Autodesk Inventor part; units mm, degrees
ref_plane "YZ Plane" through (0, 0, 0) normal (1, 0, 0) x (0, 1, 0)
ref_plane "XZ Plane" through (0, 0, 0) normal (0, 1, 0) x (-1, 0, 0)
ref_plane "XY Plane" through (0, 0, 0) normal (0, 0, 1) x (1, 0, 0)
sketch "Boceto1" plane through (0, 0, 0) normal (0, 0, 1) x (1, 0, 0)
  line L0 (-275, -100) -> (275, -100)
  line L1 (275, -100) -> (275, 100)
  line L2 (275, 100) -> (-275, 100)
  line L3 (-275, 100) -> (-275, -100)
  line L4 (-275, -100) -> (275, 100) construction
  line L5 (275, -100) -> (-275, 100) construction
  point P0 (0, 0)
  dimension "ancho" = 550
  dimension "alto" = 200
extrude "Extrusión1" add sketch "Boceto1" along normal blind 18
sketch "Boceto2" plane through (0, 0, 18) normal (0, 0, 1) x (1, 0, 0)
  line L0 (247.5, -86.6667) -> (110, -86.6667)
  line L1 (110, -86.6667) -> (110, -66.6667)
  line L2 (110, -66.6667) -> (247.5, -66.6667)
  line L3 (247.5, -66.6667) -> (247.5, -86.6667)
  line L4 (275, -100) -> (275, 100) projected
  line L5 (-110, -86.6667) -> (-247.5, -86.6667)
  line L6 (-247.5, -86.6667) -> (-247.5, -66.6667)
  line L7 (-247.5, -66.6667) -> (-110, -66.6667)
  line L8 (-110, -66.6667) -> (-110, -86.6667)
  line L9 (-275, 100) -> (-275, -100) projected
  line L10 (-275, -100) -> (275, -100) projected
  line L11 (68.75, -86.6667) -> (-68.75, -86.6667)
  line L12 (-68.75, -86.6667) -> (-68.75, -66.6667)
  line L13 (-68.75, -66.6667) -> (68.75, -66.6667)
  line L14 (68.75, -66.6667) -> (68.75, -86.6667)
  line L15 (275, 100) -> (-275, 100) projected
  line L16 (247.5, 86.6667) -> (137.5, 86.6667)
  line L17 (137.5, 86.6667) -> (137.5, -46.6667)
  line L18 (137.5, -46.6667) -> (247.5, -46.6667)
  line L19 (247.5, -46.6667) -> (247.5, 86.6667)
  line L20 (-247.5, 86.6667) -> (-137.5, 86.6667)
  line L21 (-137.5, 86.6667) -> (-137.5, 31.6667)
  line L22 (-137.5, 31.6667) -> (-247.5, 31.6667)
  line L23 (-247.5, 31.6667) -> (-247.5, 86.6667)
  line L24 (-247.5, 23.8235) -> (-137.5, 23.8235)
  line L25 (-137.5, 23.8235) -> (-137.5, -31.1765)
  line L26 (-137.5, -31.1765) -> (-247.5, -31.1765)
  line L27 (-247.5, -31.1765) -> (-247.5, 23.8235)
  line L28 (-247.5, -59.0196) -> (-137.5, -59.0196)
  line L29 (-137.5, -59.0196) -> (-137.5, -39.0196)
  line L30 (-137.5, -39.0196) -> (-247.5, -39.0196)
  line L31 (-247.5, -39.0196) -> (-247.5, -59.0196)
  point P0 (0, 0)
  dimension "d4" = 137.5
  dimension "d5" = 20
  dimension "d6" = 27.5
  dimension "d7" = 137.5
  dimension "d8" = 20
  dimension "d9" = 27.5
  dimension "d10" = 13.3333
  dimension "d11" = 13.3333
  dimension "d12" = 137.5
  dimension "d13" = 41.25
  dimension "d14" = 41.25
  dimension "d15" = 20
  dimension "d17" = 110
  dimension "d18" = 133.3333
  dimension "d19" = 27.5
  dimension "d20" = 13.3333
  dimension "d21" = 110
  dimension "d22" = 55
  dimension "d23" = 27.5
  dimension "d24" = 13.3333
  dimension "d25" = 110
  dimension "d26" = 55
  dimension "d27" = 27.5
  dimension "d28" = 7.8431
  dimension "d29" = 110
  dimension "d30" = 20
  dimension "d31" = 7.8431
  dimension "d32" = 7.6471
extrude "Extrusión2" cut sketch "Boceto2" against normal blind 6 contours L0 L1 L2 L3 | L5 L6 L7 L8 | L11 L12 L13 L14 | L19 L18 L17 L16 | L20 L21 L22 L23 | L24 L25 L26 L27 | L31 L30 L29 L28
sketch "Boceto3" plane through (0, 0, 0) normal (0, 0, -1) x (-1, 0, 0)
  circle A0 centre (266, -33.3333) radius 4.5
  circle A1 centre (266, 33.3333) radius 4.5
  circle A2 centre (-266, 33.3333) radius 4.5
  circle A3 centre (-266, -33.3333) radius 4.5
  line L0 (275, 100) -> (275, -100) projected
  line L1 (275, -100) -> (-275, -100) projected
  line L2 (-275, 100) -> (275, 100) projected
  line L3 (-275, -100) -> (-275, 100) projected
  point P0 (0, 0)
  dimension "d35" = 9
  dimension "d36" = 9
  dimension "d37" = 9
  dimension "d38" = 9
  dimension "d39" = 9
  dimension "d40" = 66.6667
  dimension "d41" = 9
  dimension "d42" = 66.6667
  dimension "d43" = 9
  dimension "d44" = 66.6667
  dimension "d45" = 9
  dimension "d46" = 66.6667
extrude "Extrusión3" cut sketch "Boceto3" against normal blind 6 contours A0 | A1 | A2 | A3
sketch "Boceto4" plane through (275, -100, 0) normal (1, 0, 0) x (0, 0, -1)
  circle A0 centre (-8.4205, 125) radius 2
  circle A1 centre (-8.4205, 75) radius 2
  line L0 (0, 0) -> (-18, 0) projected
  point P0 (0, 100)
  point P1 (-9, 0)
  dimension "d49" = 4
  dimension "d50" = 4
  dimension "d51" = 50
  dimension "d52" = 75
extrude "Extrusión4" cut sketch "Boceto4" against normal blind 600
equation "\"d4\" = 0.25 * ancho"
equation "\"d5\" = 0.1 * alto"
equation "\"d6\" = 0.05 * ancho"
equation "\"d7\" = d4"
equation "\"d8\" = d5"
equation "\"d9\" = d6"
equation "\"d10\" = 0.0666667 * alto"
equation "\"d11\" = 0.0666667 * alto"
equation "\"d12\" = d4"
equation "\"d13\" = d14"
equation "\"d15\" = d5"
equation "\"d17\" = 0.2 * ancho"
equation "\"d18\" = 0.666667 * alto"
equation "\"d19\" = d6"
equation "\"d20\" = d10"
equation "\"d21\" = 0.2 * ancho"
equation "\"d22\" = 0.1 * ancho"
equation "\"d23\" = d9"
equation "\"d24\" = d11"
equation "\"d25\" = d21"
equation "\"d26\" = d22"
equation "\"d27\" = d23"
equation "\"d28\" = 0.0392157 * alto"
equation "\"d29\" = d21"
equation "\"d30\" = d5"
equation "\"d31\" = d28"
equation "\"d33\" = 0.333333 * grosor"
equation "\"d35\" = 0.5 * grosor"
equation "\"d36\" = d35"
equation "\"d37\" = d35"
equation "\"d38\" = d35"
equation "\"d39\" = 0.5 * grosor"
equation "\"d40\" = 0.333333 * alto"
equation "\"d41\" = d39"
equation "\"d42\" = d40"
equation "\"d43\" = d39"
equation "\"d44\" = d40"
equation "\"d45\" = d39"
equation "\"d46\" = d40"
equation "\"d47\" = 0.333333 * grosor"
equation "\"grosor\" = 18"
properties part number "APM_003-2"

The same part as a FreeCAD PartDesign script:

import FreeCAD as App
import Part
import Sketcher

V = App.Vector
Q = App.Units.Quantity

doc = App.newDocument("Part")
params = doc.addObject("Spreadsheet::Sheet", "Params")
for row, (alias, value) in enumerate([
    ("sketch1_width", "550 mm"),
    ("sketch1_height", "200 mm"),
    ("pad1_length", "18 mm"),
    ("sketch2_width", "110 mm"),
    ("sketch2_height", "20 mm"),
    ("sketch2_height2", "55 mm"),
    ("sketch2_width2", "137.5 mm"),
    ("pocket1_length", "6 mm"),
    ("sketch3_diameter", "9 mm"),
    ("pocket2_length", "6 mm"),
    ("sketch4_diameter", "4 mm"),
    ("pocket3_length", "600 mm"),
], start=1):
    params.set(f"A{row}", alias)
    params.set(f"B{row}", "=" + value)
    params.setAlias(f"B{row}", alias)

body = doc.addObject("PartDesign::Body", "Body")

# Sketch on XY plane
sketch1 = body.newObject("Sketcher::SketchObject", "Sketch")
sketch1.AttachmentSupport = (doc.getObject("XY_Plane"), [""])
sketch1.MapMode = "FlatFace"
sketch1.addGeometry([
    Part.LineSegment(V(-275, 100, 0), V(-275, -100, 0)),
    Part.LineSegment(V(-275, -100, 0), V(275, -100, 0)),
    Part.LineSegment(V(275, -100, 0), V(275, 100, 0)),
    Part.LineSegment(V(275, 100, 0), V(-275, 100, 0)),
], False)
sketch1.addConstraint([
    Sketcher.Constraint("Coincident", 0, 2, 1, 1),
    Sketcher.Constraint("Coincident", 1, 2, 2, 1),
    Sketcher.Constraint("Coincident", 2, 2, 3, 1),
    Sketcher.Constraint("Coincident", 3, 2, 0, 1),
    Sketcher.Constraint("Vertical", 0),
    Sketcher.Constraint("Horizontal", 1),
    Sketcher.Constraint("Vertical", 2),
    Sketcher.Constraint("Horizontal", 3),
    Sketcher.Constraint("Symmetric", 0, 2, 2, 2, -1, 1),
    Sketcher.Constraint("DistanceX", 1, 1, 1, 2, Q("550 mm")),
    Sketcher.Constraint("DistanceY", 0, 2, 0, 1, Q("200 mm")),
])
sketch1.setExpression("Constraints[9]", "Params.sketch1_width")
sketch1.setExpression("Constraints[10]", "Params.sketch1_height")
pad1 = body.newObject("PartDesign::Pad", "Pad")
pad1.Profile = sketch1
pad1.setExpression("Length", "Params.pad1_length")

# Sketch on XY plane
sketch2 = body.newObject("Sketcher::SketchObject", "Sketch001")
sketch2.AttachmentSupport = (doc.getObject("XY_Plane"), [""])
sketch2.MapMode = "FlatFace"
sketch2.AttachmentOffset = App.Placement(V(0, 0, 18), App.Rotation())
sketch2.addGeometry([
    Part.LineSegment(V(110, -86.6667, 0), V(247.5, -86.6667, 0)),  # 0
    Part.LineSegment(V(247.5, -86.6667, 0), V(247.5, -66.6667, 0)),  # 1
    Part.LineSegment(V(247.5, -66.6667, 0), V(110, -66.6667, 0)),  # 2
    Part.LineSegment(V(110, -66.6667, 0), V(110, -86.6667, 0)),  # 3
    Part.LineSegment(V(-247.5, -86.6667, 0), V(-110, -86.6667, 0)),  # 4
    Part.LineSegment(V(-110, -86.6667, 0), V(-110, -66.6667, 0)),  # 5
    Part.LineSegment(V(-110, -66.6667, 0), V(-247.5, -66.6667, 0)),  # 6
    Part.LineSegment(V(-247.5, -66.6667, 0), V(-247.5, -86.6667, 0)),  # 7
    Part.LineSegment(V(-68.75, -86.6667, 0), V(68.75, -86.6667, 0)),  # 8
    Part.LineSegment(V(68.75, -86.6667, 0), V(68.75, -66.6667, 0)),  # 9
    Part.LineSegment(V(68.75, -66.6667, 0), V(-68.75, -66.6667, 0)),  # 10
    Part.LineSegment(V(-68.75, -66.6667, 0), V(-68.75, -86.6667, 0)),  # 11
    Part.LineSegment(V(247.5, -46.6667, 0), V(247.5, 86.6667, 0)),  # 12
    Part.LineSegment(V(247.5, 86.6667, 0), V(137.5, 86.6667, 0)),  # 13
    Part.LineSegment(V(137.5, 86.6667, 0), V(137.5, -46.6667, 0)),  # 14
    Part.LineSegment(V(137.5, -46.6667, 0), V(247.5, -46.6667, 0)),  # 15
    Part.LineSegment(V(-137.5, 86.6667, 0), V(-247.5, 86.6667, 0)),  # 16
    Part.LineSegment(V(-247.5, 86.6667, 0), V(-247.5, 31.6667, 0)),  # 17
    Part.LineSegment(V(-247.5, 31.6667, 0), V(-137.5, 31.6667, 0)),  # 18
    Part.LineSegment(V(-137.5, 31.6667, 0), V(-137.5, 86.6667, 0)),  # 19
    Part.LineSegment(V(-137.5, 23.8235, 0), V(-247.5, 23.8235, 0)),  # 20
    Part.LineSegment(V(-247.5, 23.8235, 0), V(-247.5, -31.1765, 0)),  # 21
    Part.LineSegment(V(-247.5, -31.1765, 0), V(-137.5, -31.1765, 0)),  # 22
    Part.LineSegment(V(-137.5, -31.1765, 0), V(-137.5, 23.8235, 0)),  # 23
    Part.LineSegment(V(-247.5, -39.0196, 0), V(-247.5, -59.0196, 0)),  # 24
    Part.LineSegment(V(-247.5, -59.0196, 0), V(-137.5, -59.0196, 0)),  # 25
    Part.LineSegment(V(-137.5, -59.0196, 0), V(-137.5, -39.0196, 0)),  # 26
    Part.LineSegment(V(-137.5, -39.0196, 0), V(-247.5, -39.0196, 0)),  # 27
], False)
sketch2.addConstraint([
    Sketcher.Constraint("Coincident", 0, 2, 1, 1),
    Sketcher.Constraint("Coincident", 1, 2, 2, 1),
    Sketcher.Constraint("Coincident", 2, 2, 3, 1),
    Sketcher.Constraint("Coincident", 3, 2, 0, 1),
    Sketcher.Constraint("Coincident", 4, 2, 5, 1),
    Sketcher.Constraint("Coincident", 5, 2, 6, 1),
    Sketcher.Constraint("Coincident", 6, 2, 7, 1),
    Sketcher.Constraint("Coincident", 7, 2, 4, 1),
    Sketcher.Constraint("Coincident", 8, 2, 9, 1),
    Sketcher.Constraint("Coincident", 9, 2, 10, 1),
    Sketcher.Constraint("Coincident", 10, 2, 11, 1),
    Sketcher.Constraint("Coincident", 11, 2, 8, 1),
    Sketcher.Constraint("Coincident", 12, 2, 13, 1),
    Sketcher.Constraint("Coincident", 13, 2, 14, 1),
    Sketcher.Constraint("Coincident", 14, 2, 15, 1),
    Sketcher.Constraint("Coincident", 15, 2, 12, 1),
    Sketcher.Constraint("Coincident", 16, 2, 17, 1),
    Sketcher.Constraint("Coincident", 17, 2, 18, 1),
    Sketcher.Constraint("Coincident", 18, 2, 19, 1),
    Sketcher.Constraint("Coincident", 19, 2, 16, 1),
    Sketcher.Constraint("Coincident", 20, 2, 21, 1),
    Sketcher.Constraint("Coincident", 21, 2, 22, 1),
    Sketcher.Constraint("Coincident", 22, 2, 23, 1),
    Sketcher.Constraint("Coincident", 23, 2, 20, 1),
    Sketcher.Constraint("Coincident", 24, 2, 25, 1),
    Sketcher.Constraint("Coincident", 25, 2, 26, 1),
    Sketcher.Constraint("Coincident", 26, 2, 27, 1),
    Sketcher.Constraint("Coincident", 27, 2, 24, 1),
    Sketcher.Constraint("Horizontal", 0),
    Sketcher.Constraint("Vertical", 1),
    Sketcher.Constraint("Horizontal", 2),
    Sketcher.Constraint("Vertical", 3),
    Sketcher.Constraint("Horizontal", 4),
    Sketcher.Constraint("Vertical", 5),
    Sketcher.Constraint("Horizontal", 6),
    Sketcher.Constraint("Vertical", 7),
    Sketcher.Constraint("Horizontal", 8),
    Sketcher.Constraint("Vertical", 9),
    Sketcher.Constraint("Horizontal", 10),
    Sketcher.Constraint("Vertical", 11),
    Sketcher.Constraint("Vertical", 12),
    Sketcher.Constraint("Horizontal", 13),
    Sketcher.Constraint("Vertical", 14),
    Sketcher.Constraint("Horizontal", 15),
    Sketcher.Constraint("Horizontal", 16),
    Sketcher.Constraint("Vertical", 17),
    Sketcher.Constraint("Horizontal", 18),
    Sketcher.Constraint("Vertical", 19),
    Sketcher.Constraint("Horizontal", 20),
    Sketcher.Constraint("Vertical", 21),
    Sketcher.Constraint("Horizontal", 22),
    Sketcher.Constraint("Vertical", 23),
    Sketcher.Constraint("Vertical", 24),
    Sketcher.Constraint("Horizontal", 25),
    Sketcher.Constraint("Vertical", 26),
    Sketcher.Constraint("Horizontal", 27),
    Sketcher.Constraint("Symmetric", 7, 2, 12, 2, -1, 1),
    Sketcher.Constraint("Symmetric", 0, 2, 16, 2, -1, 1),
    Sketcher.Constraint("Symmetric", 3, 2, 4, 2, -2),
    Sketcher.Constraint("Symmetric", 1, 2, 6, 2, -2),
    Sketcher.Constraint("Horizontal", 7, 2, 8, 2),
    Sketcher.Constraint("Horizontal", 6, 2, 9, 2),
    Sketcher.Constraint("Vertical", 17, 2, 20, 2),
    Sketcher.Constraint("Vertical", 19, 2, 22, 2),
    Sketcher.Constraint("Vertical", 21, 2, 24, 2),
    Sketcher.Constraint("Vertical", 23, 2, 25, 2),
    Sketcher.Constraint("Equal", 6, 8),
    Sketcher.Constraint("Equal", 15, 16),
    Sketcher.Constraint("Equal", 19, 21),
    Sketcher.Constraint("Equal", 11, 24),
    Sketcher.Constraint("DistanceX", 13, 2, 13, 1, Q("110 mm")),
    Sketcher.Constraint("DistanceY", 1, 1, 1, 2, Q("20 mm")),
    Sketcher.Constraint("DistanceY", 17, 2, 17, 1, Q("55 mm")),
    Sketcher.Constraint("DistanceX", 0, 1, 0, 2, Q("137.5 mm")),
    Sketcher.Constraint("DistanceX", -1, 1, 2, 2, Q("110 mm")),
    Sketcher.Constraint("DistanceY", 2, 2, 14, 2, Q("20 mm")),
    Sketcher.Constraint("DistanceX", 8, 2, 3, 2, Q("41.25 mm")),
    Sketcher.Constraint("DistanceY", 12, 1, 12, 2, Q("133.3334 mm")),
    Sketcher.Constraint("DistanceY", 6, 2, 24, 2, Q("7.647 mm")),
    Sketcher.Constraint("DistanceY", 26, 2, 22, 2, Q("7.843 mm")),
])
sketch2.setExpression("Constraints[70]", "Params.sketch2_width")
sketch2.setExpression("Constraints[71]", "Params.sketch2_height")
sketch2.setExpression("Constraints[72]", "Params.sketch2_height2")
sketch2.setExpression("Constraints[73]", "Params.sketch2_width2")
pocket1 = body.newObject("PartDesign::Pocket", "Pocket")
pocket1.Profile = sketch2
pocket1.setExpression("Length", "Params.pocket1_length")

# Sketch on XY plane
sketch3 = body.newObject("Sketcher::SketchObject", "Sketch002")
sketch3.AttachmentSupport = (doc.getObject("XY_Plane"), [""])
sketch3.MapMode = "FlatFace"
sketch3.addGeometry([
    Part.Circle(V(-266, -33.3333, 0), V(0, 0, 1), 4.5),
    Part.Circle(V(-266, 33.3333, 0), V(0, 0, 1), 4.5),
    Part.Circle(V(266, 33.3333, 0), V(0, 0, 1), 4.5),
    Part.Circle(V(266, -33.3333, 0), V(0, 0, 1), 4.5),
], False)
sketch3.addConstraint([
    Sketcher.Constraint("Equal", 0, 1),
    Sketcher.Constraint("Equal", 1, 2),
    Sketcher.Constraint("Equal", 2, 3),
    Sketcher.Constraint("Symmetric", 0, 3, 2, 3, -1, 1),
    Sketcher.Constraint("Symmetric", 1, 3, 3, 3, -1, 1),
    Sketcher.Constraint("Symmetric", 1, 3, 2, 3, -2),
    Sketcher.Constraint("Diameter", 0, Q("9 mm")),
    Sketcher.Constraint("DistanceX", 0, 3, -1, 1, Q("266 mm")),
    Sketcher.Constraint("DistanceY", 0, 3, 1, 3, Q("66.6666 mm")),
])
sketch3.setExpression("Constraints[6]", "Params.sketch3_diameter")
pocket2 = body.newObject("PartDesign::Pocket", "Pocket001")
pocket2.Profile = sketch3
pocket2.setExpression("Length", "Params.pocket2_length")
pocket2.Reversed = True

# Sketch on YZ plane
sketch4 = body.newObject("Sketcher::SketchObject", "Sketch003")
sketch4.AttachmentSupport = (doc.getObject("YZ_Plane"), [""])
sketch4.MapMode = "FlatFace"
sketch4.AttachmentOffset = App.Placement(V(0, 0, 275), App.Rotation())
sketch4.addGeometry([
    Part.Circle(V(25, 8.4205, 0), V(0, 0, 1), 2),
    Part.Circle(V(-25, 8.4205, 0), V(0, 0, 1), 2),
], False)
sketch4.addConstraint([
    Sketcher.Constraint("Equal", 0, 1),
    Sketcher.Constraint("Symmetric", 0, 3, 1, 3, -2),
    Sketcher.Constraint("Diameter", 0, Q("4 mm")),
    Sketcher.Constraint("DistanceX", 1, 3, 0, 3, Q("50 mm")),
    Sketcher.Constraint("DistanceY", -1, 1, 0, 3, Q("8.4205 mm")),
])
sketch4.setExpression("Constraints[2]", "Params.sketch4_diameter")
pocket3 = body.newObject("PartDesign::Pocket", "Pocket002")
pocket3.Profile = sketch4
pocket3.setExpression("Length", "Params.pocket3_length")

doc.recompute()
